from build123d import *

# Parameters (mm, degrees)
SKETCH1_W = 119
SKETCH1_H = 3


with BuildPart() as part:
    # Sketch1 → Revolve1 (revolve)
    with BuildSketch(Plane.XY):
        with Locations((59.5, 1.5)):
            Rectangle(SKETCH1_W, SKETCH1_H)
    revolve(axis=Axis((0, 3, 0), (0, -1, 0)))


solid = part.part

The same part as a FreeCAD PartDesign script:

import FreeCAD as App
import Part
import Sketcher
Q = App.Units.Quantity


def add_polygon(sketch, points):
    """Adds a closed chain of lines whose ends are joined by coincident constraints."""
    first, n = sketch.GeometryCount, len(points)
    for a, b in zip(points, points[1:] + points[:1]):
        sketch.addGeometry(Part.LineSegment(App.Vector(*a, 0), App.Vector(*b, 0)), False)
    for i in range(n):
        sketch.addConstraint(Sketcher.Constraint("Coincident", first + i, 2, first + (i + 1) % n, 1))

doc = App.newDocument("Part")
body = doc.addObject("PartDesign::Body", "Body")

sketch1 = body.newObject("Sketcher::SketchObject", "Sketch")
sketch1.AttachmentSupport = (doc.getObject("XY_Plane"), [""])
sketch1.MapMode = "FlatFace"
add_polygon(sketch1, [(0, 3), (0, 0), (119, 0), (119, 3)])
sketch1.addConstraint([
    Sketcher.Constraint("Vertical", 0),
    Sketcher.Constraint("Horizontal", 1),
    Sketcher.Constraint("Vertical", 2),
    Sketcher.Constraint("Horizontal", 3),
    Sketcher.Constraint("Coincident", 0, 2, -1, 1),
    Sketcher.Constraint("DistanceX", 1, 1, 1, 2, Q("119 mm")),
    Sketcher.Constraint("DistanceY", 0, 2, 0, 1, Q("3 mm")),
])
revolution = body.newObject("PartDesign::Revolution", "Revolution")
revolution.Profile = sketch1
revolution.ReferenceAxis = (sketch1, ["V_Axis"])
revolution.Angle = 360

doc.recompute()
